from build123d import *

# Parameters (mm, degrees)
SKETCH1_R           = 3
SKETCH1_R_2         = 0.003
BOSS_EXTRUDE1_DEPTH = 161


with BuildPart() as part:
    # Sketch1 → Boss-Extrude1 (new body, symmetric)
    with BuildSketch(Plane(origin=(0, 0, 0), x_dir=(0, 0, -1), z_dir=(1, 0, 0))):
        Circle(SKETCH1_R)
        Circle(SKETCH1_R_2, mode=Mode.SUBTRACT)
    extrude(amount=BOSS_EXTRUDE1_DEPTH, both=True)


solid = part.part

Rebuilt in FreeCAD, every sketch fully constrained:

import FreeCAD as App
import Part
import Sketcher
from FreeCAD import Vector
Q = App.Units.Quantity

doc = App.newDocument("Part")
body = doc.addObject("PartDesign::Body", "Body")

sketch1 = doc.addObject("Sketcher::SketchObject", "Sketch")
body.addObject(sketch1)
sketch1.AttachmentSupport = (doc.YZ_Plane, [""])
sketch1.MapMode = "FlatFace"
sketch1.addGeometry([
    Part.Circle(Vector(0, 0, 0), Vector(0, 0, 1), 3),
    Part.Circle(Vector(0, 0, 0), Vector(0, 0, 1), 0.003),
], False)
sketch1.addConstraint([
    Sketcher.Constraint("Coincident", 0, 3, -1, 1),
    Sketcher.Constraint("Coincident", 1, 3, -1, 1),
    Sketcher.Constraint("Diameter", 0, Q("6 mm")),
    Sketcher.Constraint("Diameter", 1, Q("0.006 mm")),
])
pad1 = doc.addObject("PartDesign::Pad", "Pad")
body.addObject(pad1)
pad1.Profile = sketch1
pad1.Length = 322
pad1.Midplane = True

doc.recompute()
